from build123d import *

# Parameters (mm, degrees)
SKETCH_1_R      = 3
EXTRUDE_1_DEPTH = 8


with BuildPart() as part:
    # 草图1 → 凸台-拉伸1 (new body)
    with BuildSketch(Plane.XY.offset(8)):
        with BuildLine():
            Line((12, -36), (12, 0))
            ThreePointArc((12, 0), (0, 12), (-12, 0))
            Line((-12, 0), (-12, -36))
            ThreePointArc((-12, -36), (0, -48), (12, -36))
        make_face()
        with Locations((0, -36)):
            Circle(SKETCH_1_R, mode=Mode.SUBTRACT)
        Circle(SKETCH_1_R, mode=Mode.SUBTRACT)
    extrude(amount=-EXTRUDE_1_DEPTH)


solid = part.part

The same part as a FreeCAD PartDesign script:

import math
import FreeCAD as App
import Part
import Sketcher
from FreeCAD import Vector
Q = App.Units.Quantity

doc = App.newDocument("Part")
body = doc.addObject("PartDesign::Body", "Body")

# Sketch on XY plane
sketch1 = body.newObject("Sketcher::SketchObject", "Sketch")
sketch1.AttachmentSupport = (doc.getObject("XY_Plane"), [""])
sketch1.MapMode = "FlatFace"
sketch1.AttachmentOffset = App.Placement(Vector(0, 0, 8), App.Rotation())
sketch1.addGeometry([
    Part.LineSegment(Vector(12, -36, 0), Vector(12, 0, 0)),  # 0
    Part.ArcOfCircle(Part.Circle(Vector(0, 0, 0), Vector(0, 0, 1), 12), math.radians(0), math.radians(180)),  # 1
    Part.LineSegment(Vector(-12, 0, 0), Vector(-12, -36, 0)),  # 2
    Part.ArcOfCircle(Part.Circle(Vector(0, -36, 0), Vector(0, 0, 1), 12), math.radians(180), math.radians(360)),  # 3
    Part.Circle(Vector(0, -36, 0), Vector(0, 0, 1), 3),  # 4
    Part.Circle(Vector(0, 0, 0), Vector(0, 0, 1), 3),  # 5
], False)
sketch1.addConstraint([
    Sketcher.Constraint("Tangent", 0, 2, 1, 1),
    Sketcher.Constraint("Tangent", 1, 2, 2, 1),
    Sketcher.Constraint("Tangent", 2, 2, 3, 1),
    Sketcher.Constraint("Tangent", 3, 2, 0, 1),
    Sketcher.Constraint("Vertical", 0),
    Sketcher.Constraint("Vertical", 2),
    Sketcher.Constraint("Coincident", 1, 3, -1, 1),
    Sketcher.Constraint("Coincident", 5, 3, -1, 1),
    Sketcher.Constraint("Coincident", 4, 3, 3, 3),
    Sketcher.Constraint("Equal", 4, 5),
    Sketcher.Constraint("Diameter", 4, Q("6 mm")),
    Sketcher.Constraint("Radius", 1, Q("12 mm")),
    Sketcher.Constraint("DistanceY", 0, 1, 0, 2, Q("36 mm")),
])
pad1 = body.newObject("PartDesign::Pad", "Pad")
pad1.Profile = sketch1
pad1.Length = 8
pad1.Reversed = True

doc.recompute()
